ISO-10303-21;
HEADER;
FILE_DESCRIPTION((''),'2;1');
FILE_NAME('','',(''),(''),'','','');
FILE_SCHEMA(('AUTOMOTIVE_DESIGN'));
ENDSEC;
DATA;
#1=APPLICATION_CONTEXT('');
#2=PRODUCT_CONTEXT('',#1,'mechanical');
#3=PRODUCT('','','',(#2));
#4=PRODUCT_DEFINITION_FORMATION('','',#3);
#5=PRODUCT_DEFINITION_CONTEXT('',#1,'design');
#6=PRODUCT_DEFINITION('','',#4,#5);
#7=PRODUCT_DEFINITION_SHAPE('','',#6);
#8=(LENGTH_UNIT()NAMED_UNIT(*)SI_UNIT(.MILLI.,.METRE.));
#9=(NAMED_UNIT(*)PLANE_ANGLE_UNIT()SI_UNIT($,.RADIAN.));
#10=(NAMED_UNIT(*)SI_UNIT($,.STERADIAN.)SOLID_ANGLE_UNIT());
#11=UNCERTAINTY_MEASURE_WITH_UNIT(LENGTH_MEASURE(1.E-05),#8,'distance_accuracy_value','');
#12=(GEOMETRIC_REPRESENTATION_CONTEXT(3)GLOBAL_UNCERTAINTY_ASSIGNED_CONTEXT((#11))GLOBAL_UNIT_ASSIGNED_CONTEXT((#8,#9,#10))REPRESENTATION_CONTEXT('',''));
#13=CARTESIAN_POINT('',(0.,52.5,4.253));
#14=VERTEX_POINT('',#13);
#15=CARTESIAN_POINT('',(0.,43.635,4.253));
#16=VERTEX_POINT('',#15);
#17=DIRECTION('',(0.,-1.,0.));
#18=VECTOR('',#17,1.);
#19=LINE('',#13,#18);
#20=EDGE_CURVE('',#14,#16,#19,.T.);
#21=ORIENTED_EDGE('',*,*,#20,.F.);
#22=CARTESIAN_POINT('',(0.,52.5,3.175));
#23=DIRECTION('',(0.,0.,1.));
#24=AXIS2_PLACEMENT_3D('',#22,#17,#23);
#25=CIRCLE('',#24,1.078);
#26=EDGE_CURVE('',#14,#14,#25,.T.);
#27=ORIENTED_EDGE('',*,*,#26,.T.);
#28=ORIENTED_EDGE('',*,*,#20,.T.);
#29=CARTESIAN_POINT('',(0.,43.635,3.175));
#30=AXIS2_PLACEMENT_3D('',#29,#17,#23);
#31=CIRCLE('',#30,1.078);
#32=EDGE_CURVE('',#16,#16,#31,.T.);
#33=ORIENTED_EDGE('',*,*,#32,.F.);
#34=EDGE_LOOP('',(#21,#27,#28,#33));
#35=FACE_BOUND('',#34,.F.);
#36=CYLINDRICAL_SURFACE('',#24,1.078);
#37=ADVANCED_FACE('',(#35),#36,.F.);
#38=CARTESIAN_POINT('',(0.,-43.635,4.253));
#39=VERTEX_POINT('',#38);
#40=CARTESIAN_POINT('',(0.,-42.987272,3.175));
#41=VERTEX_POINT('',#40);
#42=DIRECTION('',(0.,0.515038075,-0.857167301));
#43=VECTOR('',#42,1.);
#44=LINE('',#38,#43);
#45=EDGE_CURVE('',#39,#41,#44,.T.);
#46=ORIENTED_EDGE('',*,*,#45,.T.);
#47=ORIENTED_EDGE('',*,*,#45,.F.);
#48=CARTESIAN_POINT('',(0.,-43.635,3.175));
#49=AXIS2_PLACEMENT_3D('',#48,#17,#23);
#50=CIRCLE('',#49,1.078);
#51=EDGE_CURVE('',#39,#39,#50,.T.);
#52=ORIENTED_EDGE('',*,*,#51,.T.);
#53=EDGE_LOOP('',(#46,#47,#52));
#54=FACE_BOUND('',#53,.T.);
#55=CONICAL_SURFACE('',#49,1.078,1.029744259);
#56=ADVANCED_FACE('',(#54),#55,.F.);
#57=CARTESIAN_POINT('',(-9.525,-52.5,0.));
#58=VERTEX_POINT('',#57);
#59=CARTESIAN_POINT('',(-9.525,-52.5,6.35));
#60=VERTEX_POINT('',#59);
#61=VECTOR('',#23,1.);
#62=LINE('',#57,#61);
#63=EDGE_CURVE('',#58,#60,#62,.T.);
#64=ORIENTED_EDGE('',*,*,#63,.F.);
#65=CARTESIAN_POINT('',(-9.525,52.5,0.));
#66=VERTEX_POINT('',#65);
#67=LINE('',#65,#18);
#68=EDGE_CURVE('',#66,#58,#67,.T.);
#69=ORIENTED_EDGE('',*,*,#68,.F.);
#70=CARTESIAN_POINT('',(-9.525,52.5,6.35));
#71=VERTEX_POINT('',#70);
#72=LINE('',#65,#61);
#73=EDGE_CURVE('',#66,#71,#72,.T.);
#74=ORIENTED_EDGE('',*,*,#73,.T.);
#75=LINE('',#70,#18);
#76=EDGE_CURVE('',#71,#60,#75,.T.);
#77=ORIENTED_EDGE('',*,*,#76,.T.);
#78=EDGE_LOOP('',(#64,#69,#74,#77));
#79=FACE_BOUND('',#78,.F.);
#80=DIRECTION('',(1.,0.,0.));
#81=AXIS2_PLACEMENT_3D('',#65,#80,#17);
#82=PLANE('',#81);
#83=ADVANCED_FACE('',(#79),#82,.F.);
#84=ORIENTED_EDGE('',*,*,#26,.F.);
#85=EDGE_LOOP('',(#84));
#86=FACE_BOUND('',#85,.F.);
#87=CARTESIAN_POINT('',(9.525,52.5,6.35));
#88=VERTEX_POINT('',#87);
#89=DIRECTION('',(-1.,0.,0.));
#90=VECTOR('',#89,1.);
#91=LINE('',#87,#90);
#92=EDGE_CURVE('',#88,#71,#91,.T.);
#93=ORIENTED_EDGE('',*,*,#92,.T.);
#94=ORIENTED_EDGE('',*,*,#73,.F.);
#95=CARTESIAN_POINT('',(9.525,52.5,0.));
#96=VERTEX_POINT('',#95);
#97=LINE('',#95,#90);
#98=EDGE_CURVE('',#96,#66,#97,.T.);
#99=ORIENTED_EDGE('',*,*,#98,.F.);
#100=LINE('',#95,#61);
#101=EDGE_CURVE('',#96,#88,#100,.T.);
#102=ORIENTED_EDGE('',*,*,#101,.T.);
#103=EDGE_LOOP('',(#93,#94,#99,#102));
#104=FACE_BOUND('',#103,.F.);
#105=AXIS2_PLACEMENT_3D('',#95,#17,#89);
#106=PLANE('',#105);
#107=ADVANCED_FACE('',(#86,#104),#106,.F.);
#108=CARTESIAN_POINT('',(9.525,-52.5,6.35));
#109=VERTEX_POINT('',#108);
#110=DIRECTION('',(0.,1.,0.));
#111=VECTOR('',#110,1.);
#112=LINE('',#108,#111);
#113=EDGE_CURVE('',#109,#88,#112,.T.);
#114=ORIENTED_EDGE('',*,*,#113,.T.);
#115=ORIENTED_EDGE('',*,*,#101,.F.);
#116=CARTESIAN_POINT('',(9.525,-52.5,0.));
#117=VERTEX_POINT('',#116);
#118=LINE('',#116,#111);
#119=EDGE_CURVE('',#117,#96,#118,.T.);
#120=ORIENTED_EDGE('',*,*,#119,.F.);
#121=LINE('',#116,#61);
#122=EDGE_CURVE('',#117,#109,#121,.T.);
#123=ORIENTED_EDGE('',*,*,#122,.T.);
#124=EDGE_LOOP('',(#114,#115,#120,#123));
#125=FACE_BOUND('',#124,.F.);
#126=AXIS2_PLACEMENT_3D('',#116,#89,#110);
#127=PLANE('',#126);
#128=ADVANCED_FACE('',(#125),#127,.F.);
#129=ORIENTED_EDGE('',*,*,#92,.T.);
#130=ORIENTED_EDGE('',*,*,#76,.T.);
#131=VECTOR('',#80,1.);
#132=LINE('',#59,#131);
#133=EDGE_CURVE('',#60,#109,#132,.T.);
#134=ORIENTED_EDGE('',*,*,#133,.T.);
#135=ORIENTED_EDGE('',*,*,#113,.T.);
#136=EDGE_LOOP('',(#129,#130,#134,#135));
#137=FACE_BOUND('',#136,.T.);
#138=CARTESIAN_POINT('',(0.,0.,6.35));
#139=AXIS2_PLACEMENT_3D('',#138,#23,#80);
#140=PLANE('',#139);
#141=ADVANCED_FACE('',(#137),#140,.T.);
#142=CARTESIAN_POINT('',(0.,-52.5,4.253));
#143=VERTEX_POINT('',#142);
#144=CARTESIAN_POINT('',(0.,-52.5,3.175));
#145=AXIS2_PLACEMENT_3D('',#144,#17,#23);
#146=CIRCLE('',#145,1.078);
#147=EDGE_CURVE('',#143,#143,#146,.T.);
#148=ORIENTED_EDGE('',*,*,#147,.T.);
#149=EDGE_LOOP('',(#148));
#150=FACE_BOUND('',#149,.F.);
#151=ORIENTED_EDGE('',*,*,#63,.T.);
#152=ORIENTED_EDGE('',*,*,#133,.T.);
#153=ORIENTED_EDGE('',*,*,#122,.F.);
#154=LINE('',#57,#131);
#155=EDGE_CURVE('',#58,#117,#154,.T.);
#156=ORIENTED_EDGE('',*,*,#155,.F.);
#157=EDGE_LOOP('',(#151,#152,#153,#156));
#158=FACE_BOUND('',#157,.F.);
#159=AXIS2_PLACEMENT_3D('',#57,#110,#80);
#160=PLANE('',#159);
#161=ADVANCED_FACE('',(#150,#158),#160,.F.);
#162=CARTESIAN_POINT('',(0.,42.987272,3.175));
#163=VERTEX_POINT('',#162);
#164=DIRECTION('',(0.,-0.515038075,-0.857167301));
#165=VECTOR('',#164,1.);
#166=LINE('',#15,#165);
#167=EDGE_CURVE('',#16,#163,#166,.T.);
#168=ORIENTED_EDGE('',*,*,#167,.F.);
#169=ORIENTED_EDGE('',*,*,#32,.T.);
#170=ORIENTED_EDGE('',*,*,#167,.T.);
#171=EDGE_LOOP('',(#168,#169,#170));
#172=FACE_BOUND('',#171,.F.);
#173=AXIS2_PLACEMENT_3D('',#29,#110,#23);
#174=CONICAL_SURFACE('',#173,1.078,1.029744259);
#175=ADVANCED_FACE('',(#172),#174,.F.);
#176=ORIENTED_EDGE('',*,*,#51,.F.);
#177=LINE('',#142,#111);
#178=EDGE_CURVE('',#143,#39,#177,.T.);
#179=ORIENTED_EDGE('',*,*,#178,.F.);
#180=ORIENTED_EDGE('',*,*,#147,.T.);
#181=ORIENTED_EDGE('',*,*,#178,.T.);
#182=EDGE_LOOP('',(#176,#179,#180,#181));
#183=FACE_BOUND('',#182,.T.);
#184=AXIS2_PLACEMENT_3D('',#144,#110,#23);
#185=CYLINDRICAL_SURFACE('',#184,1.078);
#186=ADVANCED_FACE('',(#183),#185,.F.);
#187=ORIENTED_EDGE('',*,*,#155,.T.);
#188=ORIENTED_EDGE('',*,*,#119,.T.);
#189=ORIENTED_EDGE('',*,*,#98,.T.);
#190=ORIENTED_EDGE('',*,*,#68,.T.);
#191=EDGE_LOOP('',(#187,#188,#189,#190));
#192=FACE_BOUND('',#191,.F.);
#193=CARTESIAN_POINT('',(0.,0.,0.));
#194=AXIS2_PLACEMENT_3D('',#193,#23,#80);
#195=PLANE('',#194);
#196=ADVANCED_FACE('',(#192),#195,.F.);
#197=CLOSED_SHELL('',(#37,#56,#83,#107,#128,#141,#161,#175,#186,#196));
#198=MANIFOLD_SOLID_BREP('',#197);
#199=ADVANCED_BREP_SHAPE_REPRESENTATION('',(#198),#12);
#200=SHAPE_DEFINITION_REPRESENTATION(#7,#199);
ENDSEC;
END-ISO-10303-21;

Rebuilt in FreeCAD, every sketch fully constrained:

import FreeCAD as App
import Part
import Sketcher
from FreeCAD import Vector
Q = App.Units.Quantity

doc = App.newDocument("Part")
body = doc.addObject("PartDesign::Body", "Body")

# Sketch on XY plane
sketch1 = body.newObject("Sketcher::SketchObject", "Sketch")
sketch1.AttachmentSupport = (doc.getObject("XY_Plane"), [""])
sketch1.MapMode = "FlatFace"
sketch1.addGeometry([
    Part.LineSegment(Vector(-10, 52, 0), Vector(-10, -52, 0)),
    Part.LineSegment(Vector(-10, -52, 0), Vector(10, -52, 0)),
    Part.LineSegment(Vector(10, -52, 0), Vector(10, 52, 0)),
    Part.LineSegment(Vector(10, 52, 0), Vector(-10, 52, 0)),
], False)
sketch1.addConstraint([
    Sketcher.Constraint("Coincident", 0, 2, 1, 1),
    Sketcher.Constraint("Coincident", 1, 2, 2, 1),
    Sketcher.Constraint("Coincident", 2, 2, 3, 1),
    Sketcher.Constraint("Coincident", 3, 2, 0, 1),
    Sketcher.Constraint("Vertical", 0),
    Sketcher.Constraint("Horizontal", 1),
    Sketcher.Constraint("Vertical", 2),
    Sketcher.Constraint("Horizontal", 3),
    Sketcher.Constraint("Symmetric", 0, 2, 2, 2, -1, 1),
    Sketcher.Constraint("DistanceX", 1, 1, 1, 2, Q("0.75 in")),
    Sketcher.Constraint("DistanceY", 0, 2, 0, 1, 105.0),
])
pad1 = body.newObject("PartDesign::Pad", "Pad")
pad1.Profile = sketch1
pad1.Length = Q("0.25 in")

# Sketch on XZ plane
sketch2 = body.newObject("Sketcher::SketchObject", "Sketch001")
sketch2.AttachmentSupport = (doc.getObject("XZ_Plane"), [""])
sketch2.MapMode = "FlatFace"
sketch2.AttachmentOffset = App.Placement(Vector(0, 0, -52.5), App.Rotation())
sketch2.addGeometry(Part.Circle(Vector(0, 3.2, 0), Vector(0, 0, 1), 1.1), False)
sketch2.addConstraint([
    Sketcher.Constraint("PointOnObject", 0, 3, -2),
    Sketcher.Constraint("Diameter", 0, 2.156),
    Sketcher.Constraint("DistanceY", -1, 1, 0, 3, Q("0.125 in")),
])
doc.recompute()
hole = body.newObject("PartDesign::Hole", "Hole")
hole.Profile = sketch2
hole.ThreadType = "None"
hole.Diameter = 2.156
hole.DepthType = "Dimension"
hole.Depth = 8.865
hole.DrillPoint = "Angled"
hole.DrillPointAngle = 118
hole.Reversed = True
doc.recompute()

mirrored = body.newObject("PartDesign::Mirrored", "Mirrored")
mirrored.Originals = [hole]
mirrored.MirrorPlane = (doc.getObject("XZ_Plane"), [""])
body.Tip = mirrored

doc.recompute()
